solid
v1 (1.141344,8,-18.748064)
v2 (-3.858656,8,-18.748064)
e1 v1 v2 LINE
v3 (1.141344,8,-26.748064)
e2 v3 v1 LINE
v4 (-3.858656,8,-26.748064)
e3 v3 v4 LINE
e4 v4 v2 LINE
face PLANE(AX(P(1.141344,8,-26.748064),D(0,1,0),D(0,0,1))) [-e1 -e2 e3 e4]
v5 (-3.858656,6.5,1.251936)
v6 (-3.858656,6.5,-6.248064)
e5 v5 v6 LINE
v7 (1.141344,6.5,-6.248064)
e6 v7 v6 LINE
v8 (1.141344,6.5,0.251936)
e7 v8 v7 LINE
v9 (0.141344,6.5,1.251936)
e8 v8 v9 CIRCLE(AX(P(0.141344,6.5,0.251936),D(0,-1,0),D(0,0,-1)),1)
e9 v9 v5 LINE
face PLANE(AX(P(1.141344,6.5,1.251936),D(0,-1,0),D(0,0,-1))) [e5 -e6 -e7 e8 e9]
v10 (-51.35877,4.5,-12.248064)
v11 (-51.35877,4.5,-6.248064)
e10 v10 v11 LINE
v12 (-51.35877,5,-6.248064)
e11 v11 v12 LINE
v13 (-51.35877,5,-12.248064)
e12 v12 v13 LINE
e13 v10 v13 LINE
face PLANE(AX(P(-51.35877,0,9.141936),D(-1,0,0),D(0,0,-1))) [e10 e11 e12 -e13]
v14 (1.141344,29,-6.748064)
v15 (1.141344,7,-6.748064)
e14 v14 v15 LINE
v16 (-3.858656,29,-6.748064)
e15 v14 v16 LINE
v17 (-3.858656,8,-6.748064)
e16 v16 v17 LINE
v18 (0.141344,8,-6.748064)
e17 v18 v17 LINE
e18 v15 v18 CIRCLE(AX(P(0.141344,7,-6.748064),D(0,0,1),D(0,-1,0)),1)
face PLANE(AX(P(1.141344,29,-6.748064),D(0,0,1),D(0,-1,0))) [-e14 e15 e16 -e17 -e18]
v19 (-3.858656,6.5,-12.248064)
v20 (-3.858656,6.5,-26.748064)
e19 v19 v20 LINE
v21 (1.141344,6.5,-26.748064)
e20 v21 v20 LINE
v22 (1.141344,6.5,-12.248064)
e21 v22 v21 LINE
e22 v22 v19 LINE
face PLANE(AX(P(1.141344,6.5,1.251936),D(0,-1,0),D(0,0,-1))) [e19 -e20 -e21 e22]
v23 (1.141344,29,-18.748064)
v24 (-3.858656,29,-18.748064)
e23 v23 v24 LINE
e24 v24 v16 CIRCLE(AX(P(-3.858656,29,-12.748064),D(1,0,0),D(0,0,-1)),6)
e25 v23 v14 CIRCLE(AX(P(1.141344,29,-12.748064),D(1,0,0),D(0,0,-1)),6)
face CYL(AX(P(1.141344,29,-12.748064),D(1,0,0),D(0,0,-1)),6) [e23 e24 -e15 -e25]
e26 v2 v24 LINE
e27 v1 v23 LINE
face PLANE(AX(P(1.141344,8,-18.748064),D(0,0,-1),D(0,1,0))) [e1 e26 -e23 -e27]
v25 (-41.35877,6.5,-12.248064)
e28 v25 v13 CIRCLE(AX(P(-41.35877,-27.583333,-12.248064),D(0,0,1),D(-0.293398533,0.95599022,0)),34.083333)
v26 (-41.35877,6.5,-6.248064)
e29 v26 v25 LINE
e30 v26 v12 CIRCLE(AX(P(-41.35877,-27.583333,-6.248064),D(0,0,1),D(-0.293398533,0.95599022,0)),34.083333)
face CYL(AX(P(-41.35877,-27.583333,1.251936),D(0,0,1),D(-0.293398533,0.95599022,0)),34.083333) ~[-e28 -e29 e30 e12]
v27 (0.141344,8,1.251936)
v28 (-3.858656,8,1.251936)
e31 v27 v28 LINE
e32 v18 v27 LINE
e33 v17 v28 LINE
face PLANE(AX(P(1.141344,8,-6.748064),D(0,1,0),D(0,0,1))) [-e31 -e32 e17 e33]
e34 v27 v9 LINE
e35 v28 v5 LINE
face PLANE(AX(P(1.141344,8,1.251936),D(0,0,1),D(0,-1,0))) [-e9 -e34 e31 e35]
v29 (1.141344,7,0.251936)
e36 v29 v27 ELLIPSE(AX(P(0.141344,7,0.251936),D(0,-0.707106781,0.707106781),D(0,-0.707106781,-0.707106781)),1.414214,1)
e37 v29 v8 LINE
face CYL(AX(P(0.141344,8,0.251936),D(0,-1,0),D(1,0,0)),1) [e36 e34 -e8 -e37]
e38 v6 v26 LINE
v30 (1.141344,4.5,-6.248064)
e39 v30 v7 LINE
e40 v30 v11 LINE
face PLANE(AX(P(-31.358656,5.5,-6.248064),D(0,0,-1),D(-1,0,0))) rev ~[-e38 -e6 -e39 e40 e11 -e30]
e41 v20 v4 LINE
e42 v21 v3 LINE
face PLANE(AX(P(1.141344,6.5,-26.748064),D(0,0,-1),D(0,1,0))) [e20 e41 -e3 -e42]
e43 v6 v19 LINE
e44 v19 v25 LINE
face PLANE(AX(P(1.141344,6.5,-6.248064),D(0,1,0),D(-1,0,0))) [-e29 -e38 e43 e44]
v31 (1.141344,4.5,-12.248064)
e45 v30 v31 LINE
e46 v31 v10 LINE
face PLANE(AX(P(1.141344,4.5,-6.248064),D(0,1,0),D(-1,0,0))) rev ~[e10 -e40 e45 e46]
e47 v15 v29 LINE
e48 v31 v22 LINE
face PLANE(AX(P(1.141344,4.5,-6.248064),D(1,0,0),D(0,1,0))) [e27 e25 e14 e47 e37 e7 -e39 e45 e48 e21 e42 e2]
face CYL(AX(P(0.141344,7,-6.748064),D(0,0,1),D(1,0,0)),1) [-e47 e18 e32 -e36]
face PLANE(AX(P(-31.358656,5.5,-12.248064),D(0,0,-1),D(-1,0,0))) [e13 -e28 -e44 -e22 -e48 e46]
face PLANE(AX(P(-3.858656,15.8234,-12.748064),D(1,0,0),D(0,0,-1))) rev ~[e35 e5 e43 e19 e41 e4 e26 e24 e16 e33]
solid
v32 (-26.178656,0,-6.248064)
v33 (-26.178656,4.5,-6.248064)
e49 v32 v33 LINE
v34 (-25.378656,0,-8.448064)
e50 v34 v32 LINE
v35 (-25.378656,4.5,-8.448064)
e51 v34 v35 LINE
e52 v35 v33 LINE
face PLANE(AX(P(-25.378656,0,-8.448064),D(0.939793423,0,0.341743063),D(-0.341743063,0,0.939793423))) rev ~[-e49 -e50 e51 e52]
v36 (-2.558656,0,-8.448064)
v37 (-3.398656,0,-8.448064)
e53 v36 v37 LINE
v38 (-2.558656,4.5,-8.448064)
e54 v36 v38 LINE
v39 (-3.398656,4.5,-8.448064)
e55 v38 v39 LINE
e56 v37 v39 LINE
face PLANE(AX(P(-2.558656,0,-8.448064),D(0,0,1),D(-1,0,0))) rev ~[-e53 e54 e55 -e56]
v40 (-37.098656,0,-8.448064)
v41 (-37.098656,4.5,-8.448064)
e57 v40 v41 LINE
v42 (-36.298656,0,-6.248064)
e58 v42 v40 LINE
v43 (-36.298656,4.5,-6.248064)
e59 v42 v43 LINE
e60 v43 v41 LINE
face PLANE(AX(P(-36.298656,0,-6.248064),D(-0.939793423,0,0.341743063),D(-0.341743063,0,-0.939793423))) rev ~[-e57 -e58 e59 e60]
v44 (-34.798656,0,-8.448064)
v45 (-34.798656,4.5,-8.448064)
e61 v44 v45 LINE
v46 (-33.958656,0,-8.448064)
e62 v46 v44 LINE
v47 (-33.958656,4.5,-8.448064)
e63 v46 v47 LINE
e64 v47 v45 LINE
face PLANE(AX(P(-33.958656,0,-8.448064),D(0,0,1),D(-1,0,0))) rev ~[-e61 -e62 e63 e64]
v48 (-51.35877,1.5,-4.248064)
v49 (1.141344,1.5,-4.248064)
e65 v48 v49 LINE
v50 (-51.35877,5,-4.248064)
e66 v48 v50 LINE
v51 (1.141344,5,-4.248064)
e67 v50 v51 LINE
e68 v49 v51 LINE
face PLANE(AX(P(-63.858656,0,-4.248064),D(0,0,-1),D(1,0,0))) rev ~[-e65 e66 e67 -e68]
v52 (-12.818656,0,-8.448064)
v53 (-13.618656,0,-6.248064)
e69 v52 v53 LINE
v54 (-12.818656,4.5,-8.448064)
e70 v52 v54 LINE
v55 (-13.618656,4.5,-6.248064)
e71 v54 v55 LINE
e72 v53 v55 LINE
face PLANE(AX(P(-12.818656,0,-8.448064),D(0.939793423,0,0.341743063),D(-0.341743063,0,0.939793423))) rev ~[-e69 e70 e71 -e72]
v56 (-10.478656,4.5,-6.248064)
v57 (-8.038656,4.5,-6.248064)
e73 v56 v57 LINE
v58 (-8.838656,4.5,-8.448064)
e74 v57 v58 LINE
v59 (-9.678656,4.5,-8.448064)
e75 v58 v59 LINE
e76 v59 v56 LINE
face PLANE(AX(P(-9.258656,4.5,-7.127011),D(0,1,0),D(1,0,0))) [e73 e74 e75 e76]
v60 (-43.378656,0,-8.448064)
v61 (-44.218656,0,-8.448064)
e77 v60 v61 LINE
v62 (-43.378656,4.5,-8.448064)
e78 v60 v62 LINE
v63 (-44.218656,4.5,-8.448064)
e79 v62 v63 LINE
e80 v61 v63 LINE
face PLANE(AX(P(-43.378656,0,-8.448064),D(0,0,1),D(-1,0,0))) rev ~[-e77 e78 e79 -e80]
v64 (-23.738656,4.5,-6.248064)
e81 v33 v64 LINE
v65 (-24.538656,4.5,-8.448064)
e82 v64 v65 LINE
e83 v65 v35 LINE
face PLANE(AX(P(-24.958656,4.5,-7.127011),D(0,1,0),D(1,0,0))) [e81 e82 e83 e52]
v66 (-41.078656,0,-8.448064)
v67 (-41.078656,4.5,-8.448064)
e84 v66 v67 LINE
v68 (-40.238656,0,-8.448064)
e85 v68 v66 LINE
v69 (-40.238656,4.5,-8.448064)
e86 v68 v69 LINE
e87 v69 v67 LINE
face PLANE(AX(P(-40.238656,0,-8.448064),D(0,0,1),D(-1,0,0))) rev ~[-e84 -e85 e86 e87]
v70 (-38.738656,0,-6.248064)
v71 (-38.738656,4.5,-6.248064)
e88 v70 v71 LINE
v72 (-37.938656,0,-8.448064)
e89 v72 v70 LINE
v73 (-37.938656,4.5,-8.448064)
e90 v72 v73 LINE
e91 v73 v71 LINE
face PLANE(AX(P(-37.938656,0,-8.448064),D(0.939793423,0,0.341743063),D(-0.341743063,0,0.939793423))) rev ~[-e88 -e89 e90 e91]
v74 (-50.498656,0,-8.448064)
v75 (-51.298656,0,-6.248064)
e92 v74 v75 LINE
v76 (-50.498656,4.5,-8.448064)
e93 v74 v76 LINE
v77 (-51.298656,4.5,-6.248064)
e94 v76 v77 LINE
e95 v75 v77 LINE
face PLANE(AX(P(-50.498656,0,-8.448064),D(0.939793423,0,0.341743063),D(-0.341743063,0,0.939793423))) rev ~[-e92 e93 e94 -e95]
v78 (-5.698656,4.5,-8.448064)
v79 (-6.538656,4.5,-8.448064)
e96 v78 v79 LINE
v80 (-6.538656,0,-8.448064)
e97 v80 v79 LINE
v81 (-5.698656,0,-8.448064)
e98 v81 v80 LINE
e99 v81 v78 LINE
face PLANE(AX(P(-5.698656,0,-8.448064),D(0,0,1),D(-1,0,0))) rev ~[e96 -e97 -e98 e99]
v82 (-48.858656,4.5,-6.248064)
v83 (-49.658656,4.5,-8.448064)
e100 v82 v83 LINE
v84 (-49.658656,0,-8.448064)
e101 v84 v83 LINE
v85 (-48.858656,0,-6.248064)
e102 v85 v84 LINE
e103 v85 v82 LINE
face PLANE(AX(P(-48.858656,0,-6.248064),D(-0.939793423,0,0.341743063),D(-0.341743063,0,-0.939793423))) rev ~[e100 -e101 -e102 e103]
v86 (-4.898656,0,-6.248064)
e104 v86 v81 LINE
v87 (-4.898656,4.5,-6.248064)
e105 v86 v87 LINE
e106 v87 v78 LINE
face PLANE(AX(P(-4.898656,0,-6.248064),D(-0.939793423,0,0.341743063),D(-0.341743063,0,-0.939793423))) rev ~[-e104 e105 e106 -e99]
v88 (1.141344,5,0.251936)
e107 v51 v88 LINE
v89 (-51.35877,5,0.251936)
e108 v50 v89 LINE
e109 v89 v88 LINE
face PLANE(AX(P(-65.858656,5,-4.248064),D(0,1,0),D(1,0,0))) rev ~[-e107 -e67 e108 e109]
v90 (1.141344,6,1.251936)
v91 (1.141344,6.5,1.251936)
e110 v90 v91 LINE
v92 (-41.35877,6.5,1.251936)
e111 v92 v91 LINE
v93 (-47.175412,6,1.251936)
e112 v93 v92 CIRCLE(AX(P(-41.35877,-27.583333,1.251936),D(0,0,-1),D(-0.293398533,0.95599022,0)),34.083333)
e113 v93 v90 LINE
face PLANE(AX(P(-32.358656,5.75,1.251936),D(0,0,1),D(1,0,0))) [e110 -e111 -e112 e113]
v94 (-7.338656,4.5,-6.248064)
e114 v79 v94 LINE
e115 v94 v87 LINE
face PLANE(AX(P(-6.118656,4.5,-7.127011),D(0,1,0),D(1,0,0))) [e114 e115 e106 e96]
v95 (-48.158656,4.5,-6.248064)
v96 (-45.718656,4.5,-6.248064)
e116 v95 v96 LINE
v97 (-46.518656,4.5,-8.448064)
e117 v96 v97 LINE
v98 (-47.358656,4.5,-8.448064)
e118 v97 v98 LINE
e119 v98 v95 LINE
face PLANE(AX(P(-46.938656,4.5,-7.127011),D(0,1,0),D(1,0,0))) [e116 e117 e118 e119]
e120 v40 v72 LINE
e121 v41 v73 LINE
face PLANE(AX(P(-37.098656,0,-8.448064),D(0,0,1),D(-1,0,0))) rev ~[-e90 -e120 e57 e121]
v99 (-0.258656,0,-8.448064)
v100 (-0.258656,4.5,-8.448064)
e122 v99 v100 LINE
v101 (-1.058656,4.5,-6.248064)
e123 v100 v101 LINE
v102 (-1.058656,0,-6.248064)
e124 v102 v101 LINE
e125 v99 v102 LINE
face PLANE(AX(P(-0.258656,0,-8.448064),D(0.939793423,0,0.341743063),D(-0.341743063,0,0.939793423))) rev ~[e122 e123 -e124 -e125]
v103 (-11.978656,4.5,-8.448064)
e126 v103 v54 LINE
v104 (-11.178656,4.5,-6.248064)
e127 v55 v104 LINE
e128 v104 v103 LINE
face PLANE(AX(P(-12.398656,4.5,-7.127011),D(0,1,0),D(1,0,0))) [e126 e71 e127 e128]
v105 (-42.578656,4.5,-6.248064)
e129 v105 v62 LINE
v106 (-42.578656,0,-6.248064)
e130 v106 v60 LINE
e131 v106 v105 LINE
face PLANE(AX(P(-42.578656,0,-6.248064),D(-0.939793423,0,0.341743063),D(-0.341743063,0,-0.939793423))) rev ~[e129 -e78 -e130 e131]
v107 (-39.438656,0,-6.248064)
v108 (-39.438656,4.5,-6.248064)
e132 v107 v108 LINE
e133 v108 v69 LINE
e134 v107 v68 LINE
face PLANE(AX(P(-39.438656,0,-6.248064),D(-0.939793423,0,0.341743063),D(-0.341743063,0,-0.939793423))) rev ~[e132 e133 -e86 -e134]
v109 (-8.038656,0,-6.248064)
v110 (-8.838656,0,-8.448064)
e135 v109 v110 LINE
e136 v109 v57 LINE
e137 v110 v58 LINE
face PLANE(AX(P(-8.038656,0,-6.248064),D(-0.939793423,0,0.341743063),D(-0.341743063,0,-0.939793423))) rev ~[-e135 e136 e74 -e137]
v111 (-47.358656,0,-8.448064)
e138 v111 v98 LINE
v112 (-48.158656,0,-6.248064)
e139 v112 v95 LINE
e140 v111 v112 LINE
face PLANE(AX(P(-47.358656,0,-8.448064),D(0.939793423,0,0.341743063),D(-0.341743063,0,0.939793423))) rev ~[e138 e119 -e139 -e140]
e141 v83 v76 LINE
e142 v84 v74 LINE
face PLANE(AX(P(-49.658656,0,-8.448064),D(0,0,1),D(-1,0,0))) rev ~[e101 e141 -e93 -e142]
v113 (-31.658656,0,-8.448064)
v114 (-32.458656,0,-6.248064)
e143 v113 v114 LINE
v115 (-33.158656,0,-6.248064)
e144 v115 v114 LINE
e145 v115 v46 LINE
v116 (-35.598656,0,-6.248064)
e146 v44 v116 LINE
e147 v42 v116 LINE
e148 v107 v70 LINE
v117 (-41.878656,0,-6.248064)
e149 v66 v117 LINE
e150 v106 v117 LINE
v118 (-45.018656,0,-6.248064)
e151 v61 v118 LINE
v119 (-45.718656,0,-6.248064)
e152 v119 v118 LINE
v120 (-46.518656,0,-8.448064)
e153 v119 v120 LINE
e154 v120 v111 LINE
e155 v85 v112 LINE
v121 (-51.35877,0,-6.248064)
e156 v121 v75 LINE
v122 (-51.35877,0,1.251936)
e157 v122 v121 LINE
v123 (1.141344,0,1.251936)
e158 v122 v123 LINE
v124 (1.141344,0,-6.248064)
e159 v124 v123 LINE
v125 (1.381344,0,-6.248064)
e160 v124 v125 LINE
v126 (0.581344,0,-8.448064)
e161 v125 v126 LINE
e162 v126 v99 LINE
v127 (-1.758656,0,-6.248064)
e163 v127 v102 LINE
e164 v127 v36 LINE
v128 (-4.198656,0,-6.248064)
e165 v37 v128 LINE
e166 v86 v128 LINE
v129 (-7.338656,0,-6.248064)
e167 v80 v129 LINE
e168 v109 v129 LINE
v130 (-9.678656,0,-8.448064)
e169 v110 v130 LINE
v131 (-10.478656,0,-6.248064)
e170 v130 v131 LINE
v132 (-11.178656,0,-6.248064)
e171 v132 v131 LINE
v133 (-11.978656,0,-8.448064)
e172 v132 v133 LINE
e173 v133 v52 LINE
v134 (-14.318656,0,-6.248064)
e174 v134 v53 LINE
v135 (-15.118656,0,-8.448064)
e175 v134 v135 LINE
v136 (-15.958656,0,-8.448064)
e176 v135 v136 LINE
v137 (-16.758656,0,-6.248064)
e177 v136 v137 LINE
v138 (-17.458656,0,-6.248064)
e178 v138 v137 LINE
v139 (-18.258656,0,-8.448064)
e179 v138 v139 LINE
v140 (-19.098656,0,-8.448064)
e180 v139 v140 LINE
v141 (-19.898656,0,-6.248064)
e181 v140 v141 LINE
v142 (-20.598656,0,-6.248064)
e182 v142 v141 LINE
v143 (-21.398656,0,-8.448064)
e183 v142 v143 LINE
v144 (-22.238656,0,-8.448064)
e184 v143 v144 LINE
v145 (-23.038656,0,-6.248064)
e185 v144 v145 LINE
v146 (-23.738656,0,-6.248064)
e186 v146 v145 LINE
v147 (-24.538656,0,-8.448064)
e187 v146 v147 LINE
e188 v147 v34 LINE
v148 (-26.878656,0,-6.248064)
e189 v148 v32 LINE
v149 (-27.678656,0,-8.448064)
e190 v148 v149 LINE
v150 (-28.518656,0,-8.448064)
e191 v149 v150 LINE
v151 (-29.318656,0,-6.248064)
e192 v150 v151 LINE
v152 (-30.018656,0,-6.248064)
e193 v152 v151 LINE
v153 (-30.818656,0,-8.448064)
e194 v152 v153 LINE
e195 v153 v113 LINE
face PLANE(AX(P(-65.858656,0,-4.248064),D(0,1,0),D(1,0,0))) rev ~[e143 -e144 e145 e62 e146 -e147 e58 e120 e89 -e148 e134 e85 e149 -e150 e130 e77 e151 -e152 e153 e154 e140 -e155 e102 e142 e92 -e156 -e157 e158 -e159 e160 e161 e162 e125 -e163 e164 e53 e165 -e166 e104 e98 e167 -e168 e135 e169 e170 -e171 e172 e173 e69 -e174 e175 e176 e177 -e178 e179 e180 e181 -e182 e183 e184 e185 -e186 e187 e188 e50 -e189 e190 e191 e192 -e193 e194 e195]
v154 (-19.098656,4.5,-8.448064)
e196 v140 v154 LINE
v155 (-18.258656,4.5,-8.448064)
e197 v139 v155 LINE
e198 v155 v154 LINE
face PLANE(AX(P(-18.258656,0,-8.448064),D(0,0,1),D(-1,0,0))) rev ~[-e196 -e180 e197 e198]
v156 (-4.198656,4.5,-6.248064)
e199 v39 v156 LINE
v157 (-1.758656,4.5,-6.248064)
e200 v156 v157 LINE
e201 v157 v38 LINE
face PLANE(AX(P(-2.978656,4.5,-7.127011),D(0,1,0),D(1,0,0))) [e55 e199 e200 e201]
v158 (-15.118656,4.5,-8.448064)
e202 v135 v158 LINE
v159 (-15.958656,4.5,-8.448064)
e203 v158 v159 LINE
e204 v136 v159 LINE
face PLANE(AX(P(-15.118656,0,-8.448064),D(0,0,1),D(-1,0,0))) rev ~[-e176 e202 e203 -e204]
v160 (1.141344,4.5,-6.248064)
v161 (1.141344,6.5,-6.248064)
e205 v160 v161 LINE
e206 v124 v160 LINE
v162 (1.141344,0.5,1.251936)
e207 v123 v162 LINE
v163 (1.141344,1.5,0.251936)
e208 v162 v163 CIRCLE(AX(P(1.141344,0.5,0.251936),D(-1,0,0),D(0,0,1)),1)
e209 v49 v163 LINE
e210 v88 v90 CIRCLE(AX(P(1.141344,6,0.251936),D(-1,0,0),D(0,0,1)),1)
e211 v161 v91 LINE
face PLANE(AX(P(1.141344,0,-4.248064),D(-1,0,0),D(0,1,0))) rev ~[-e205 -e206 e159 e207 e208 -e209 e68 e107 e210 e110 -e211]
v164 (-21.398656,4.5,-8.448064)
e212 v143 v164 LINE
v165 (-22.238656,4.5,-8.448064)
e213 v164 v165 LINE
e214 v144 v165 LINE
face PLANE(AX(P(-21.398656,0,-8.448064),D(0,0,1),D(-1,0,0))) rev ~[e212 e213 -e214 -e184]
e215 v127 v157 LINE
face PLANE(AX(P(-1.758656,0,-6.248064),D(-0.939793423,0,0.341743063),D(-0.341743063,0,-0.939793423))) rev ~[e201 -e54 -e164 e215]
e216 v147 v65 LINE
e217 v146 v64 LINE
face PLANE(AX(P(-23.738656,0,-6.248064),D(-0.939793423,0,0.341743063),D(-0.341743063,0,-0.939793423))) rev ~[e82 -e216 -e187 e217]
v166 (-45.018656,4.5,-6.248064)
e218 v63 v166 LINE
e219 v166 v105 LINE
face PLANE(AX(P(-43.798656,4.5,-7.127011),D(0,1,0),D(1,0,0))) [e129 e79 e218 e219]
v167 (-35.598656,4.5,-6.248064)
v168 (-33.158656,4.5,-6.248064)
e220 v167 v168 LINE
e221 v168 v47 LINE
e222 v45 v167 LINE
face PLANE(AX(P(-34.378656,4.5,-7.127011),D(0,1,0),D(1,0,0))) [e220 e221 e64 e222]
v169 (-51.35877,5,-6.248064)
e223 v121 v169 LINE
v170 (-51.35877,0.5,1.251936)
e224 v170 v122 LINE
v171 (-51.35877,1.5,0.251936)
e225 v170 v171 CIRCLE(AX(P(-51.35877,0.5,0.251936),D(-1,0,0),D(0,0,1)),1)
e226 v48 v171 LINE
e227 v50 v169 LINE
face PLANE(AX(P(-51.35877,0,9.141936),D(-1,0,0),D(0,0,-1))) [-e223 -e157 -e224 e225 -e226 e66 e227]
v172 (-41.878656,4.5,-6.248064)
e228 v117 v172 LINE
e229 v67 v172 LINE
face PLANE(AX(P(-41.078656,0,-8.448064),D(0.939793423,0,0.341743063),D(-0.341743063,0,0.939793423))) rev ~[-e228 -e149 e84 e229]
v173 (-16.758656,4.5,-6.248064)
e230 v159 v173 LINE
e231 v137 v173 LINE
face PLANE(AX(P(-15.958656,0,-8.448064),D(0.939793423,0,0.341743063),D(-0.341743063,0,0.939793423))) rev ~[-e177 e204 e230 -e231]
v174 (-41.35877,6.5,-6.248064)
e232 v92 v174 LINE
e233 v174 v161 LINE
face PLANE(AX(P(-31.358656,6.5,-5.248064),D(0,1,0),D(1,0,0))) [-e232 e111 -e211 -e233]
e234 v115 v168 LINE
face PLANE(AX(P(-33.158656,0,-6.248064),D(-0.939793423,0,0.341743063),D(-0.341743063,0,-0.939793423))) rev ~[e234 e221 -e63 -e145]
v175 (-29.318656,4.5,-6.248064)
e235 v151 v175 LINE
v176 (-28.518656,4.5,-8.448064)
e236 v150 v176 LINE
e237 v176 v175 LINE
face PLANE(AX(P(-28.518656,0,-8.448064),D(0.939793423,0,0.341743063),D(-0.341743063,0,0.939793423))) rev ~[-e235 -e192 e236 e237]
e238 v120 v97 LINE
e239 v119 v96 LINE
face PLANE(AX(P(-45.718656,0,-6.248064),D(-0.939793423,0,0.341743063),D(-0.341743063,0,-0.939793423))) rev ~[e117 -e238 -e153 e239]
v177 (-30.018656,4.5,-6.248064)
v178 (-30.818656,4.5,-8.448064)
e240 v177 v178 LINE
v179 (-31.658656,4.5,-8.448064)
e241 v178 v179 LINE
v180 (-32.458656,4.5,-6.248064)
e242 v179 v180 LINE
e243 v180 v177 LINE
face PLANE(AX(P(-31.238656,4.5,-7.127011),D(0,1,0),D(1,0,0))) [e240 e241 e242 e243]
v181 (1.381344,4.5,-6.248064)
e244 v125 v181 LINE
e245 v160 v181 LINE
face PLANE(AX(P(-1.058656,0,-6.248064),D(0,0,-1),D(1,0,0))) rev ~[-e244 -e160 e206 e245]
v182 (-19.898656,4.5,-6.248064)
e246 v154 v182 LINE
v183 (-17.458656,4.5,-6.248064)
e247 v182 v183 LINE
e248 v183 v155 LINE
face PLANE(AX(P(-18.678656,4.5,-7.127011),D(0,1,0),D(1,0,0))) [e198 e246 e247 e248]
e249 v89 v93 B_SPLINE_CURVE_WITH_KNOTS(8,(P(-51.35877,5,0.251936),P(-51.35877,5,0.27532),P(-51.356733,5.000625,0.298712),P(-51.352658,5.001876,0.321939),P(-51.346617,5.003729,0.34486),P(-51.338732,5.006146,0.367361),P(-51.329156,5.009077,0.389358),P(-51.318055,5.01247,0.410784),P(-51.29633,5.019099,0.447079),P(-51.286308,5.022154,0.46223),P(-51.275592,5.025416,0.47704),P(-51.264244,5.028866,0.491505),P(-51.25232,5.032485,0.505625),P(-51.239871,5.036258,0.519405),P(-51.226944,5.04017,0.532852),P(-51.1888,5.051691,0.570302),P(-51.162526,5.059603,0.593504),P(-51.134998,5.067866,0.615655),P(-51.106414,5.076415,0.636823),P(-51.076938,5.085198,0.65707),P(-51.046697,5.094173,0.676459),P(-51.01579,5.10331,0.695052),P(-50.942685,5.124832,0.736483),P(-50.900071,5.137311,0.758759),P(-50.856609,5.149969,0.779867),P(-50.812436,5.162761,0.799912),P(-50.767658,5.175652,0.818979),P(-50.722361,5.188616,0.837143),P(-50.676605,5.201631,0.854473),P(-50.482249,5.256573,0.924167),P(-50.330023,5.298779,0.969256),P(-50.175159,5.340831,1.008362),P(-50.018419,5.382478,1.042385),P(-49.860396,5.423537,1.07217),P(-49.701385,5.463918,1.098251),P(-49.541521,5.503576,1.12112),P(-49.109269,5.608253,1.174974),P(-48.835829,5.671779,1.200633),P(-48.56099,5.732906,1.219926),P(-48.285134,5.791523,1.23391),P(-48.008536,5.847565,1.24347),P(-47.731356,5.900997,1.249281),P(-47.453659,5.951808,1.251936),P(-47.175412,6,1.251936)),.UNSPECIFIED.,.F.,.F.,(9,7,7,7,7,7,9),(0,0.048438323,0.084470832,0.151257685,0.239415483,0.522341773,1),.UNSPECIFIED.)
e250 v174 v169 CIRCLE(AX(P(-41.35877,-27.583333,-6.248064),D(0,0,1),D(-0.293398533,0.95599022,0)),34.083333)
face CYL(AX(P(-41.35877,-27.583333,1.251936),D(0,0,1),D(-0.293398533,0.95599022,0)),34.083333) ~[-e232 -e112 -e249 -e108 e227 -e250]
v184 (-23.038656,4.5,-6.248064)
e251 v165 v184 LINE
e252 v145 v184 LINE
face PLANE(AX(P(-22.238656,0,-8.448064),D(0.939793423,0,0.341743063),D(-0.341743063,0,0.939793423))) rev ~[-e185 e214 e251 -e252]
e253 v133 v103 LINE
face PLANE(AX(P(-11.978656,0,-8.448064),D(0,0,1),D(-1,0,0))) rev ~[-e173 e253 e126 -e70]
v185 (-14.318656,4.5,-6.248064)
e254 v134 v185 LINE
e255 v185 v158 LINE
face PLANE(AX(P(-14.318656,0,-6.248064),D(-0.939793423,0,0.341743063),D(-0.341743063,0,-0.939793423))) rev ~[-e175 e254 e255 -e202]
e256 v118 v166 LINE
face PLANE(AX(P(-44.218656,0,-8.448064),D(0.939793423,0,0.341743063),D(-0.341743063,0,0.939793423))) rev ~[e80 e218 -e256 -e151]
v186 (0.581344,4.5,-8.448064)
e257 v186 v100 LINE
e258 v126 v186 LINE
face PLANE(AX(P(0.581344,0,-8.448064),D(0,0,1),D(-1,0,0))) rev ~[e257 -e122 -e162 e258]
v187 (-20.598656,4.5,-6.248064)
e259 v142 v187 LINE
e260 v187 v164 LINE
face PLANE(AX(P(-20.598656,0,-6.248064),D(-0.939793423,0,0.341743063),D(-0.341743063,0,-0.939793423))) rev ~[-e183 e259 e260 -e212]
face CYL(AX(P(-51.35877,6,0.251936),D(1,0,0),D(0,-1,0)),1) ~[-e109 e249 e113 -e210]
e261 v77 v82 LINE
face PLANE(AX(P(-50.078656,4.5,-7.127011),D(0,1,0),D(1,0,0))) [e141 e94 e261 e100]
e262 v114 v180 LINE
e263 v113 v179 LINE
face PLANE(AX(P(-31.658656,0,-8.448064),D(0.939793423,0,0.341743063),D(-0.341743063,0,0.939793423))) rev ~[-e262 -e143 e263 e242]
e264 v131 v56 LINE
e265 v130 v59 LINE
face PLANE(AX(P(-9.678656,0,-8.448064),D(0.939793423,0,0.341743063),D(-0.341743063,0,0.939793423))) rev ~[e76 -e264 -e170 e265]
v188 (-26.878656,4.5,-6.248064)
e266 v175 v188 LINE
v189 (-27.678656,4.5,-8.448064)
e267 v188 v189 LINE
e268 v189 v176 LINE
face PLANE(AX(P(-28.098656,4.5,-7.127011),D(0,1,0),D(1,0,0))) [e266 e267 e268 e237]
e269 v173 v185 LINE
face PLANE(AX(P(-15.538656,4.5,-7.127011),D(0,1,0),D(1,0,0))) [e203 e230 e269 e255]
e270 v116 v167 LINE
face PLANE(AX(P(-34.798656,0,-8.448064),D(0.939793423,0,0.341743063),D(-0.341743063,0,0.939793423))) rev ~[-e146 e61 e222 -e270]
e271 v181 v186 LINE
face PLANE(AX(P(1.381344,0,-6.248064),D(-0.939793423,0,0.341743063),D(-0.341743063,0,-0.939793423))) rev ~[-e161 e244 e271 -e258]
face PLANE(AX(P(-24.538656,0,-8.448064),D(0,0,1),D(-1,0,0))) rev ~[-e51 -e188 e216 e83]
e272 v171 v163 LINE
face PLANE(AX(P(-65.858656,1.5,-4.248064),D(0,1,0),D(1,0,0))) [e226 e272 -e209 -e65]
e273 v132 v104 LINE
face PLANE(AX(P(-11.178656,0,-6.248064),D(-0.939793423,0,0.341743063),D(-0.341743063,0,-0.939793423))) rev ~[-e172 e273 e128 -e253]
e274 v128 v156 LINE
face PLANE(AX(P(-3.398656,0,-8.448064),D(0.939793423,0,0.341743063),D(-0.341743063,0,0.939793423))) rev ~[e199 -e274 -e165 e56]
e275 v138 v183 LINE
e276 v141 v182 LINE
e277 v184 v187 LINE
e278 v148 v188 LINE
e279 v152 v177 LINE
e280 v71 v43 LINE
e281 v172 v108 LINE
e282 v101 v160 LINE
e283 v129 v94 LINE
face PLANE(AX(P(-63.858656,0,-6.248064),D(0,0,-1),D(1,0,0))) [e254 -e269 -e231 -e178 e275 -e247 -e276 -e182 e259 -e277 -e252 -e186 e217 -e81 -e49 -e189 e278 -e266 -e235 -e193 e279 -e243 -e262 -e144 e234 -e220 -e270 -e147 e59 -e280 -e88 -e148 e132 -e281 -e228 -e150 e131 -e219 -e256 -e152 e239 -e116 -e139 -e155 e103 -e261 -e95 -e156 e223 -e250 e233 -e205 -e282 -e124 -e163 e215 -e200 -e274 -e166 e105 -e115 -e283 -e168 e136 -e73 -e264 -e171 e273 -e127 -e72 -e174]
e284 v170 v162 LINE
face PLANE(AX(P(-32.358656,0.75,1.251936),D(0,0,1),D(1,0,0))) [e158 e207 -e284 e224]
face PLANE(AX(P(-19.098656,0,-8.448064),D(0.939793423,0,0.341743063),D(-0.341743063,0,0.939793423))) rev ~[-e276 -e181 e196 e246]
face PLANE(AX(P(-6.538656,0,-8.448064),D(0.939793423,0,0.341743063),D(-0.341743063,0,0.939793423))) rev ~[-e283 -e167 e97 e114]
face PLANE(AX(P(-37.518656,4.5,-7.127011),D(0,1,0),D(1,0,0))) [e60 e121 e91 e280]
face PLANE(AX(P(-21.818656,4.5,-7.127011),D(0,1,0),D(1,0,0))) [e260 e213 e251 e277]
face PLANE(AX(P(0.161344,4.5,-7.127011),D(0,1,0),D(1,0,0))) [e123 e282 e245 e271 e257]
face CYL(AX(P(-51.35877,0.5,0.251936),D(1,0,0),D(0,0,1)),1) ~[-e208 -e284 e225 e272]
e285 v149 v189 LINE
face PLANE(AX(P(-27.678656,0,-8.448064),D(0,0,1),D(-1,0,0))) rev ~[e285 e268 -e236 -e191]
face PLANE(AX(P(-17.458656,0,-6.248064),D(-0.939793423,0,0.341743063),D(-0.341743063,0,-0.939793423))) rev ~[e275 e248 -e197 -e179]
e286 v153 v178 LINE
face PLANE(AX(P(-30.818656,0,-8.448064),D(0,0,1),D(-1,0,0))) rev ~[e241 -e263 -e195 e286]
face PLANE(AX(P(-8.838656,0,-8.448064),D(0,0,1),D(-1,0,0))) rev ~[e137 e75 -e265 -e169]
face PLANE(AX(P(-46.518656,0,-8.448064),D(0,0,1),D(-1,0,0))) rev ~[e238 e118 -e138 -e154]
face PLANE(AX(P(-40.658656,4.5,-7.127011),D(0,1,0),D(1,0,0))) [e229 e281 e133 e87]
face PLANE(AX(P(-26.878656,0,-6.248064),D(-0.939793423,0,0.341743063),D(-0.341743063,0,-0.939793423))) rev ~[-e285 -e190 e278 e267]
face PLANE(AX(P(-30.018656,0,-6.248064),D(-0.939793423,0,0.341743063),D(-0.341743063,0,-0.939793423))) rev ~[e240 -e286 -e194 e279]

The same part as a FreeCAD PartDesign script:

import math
import FreeCAD as App
import Part
import Sketcher
from FreeCAD import Vector
Q = App.Units.Quantity


def edges_at(feature, points):
    """Names of the edges that pass closest to the given points."""
    edges = feature.Shape.Edges
    near = lambda p: min(range(len(edges)), key=lambda i: edges[i].distToShape(Part.Vertex(*p))[0])
    return sorted({f"Edge{near(p) + 1}" for p in points})


def add_polygon(sketch, points):
    """Adds a closed chain of lines whose ends are joined by coincident constraints."""
    first, n = sketch.GeometryCount, len(points)
    for a, b in zip(points, points[1:] + points[:1]):
        sketch.addGeometry(Part.LineSegment(App.Vector(*a, 0), App.Vector(*b, 0)), False)
    for i in range(n):
        sketch.addConstraint(Sketcher.Constraint("Coincident", first + i, 2, first + (i + 1) % n, 1))

doc = App.newDocument("Part")
body = doc.addObject("PartDesign::Body", "Body")

# Sketch on XZ plane
sketch1 = body.newObject("Sketcher::SketchObject", "Sketch")
sketch1.AttachmentSupport = (doc.getObject("XZ_Plane"), [""])
sketch1.MapMode = "FlatFace"
add_polygon(sketch1, [(-63.858656, -6.248064), (-63.858656, -4.248064), (1.141344, -4.248064), (1.141344, -6.248064)])  # lines 0-3
sketch1.addConstraint([
    Sketcher.Constraint("Vertical", 0),
    Sketcher.Constraint("Horizontal", 1),
    Sketcher.Constraint("Vertical", 2),
    Sketcher.Constraint("Horizontal", 3),
    Sketcher.Constraint("DistanceX", 1, 1, 1, 2, Q("65 mm")),
    Sketcher.Constraint("DistanceY", 0, 1, 0, 2, Q("2 mm")),
    Sketcher.Constraint("DistanceX", 0, 2, -1, 1, Q("63.858656 mm")),
    Sketcher.Constraint("DistanceY", 0, 2, -1, 1, Q("4.248064 mm")),
])
pad1 = body.newObject("PartDesign::Pad", "Pad")
pad1.Profile = sketch1
pad1.Length = 6.5
pad1.Reversed = True

# Sketch on XZ plane
sketch2 = body.newObject("Sketcher::SketchObject", "Sketch001")
sketch2.AttachmentSupport = (doc.getObject("XZ_Plane"), [""])
sketch2.MapMode = "FlatFace"
add_polygon(sketch2, [(-63.058656, -8.448064), (-63.858656, -6.248064), (-61.418656, -6.248064), (-62.218656, -8.448064)])  # lines 0-3
add_polygon(sketch2, [(-59.918656, -8.448064), (-60.718656, -6.248064), (-58.278656, -6.248064), (-59.078656, -8.448064)])  # lines 4-7
add_polygon(sketch2, [(-56.778656, -8.448064), (-57.578656, -6.248064), (-55.138656, -6.248064), (-55.938656, -8.448064)])  # lines 8-11
add_polygon(sketch2, [(-53.638656, -8.448064), (-54.438656, -6.248064), (-51.998656, -6.248064), (-52.798656, -8.448064)])  # lines 12-15
add_polygon(sketch2, [(-50.498656, -8.448064), (-51.298656, -6.248064), (-48.858656, -6.248064), (-49.658656, -8.448064)])  # lines 16-19
add_polygon(sketch2, [(-47.358656, -8.448064), (-48.158656, -6.248064), (-45.718656, -6.248064), (-46.518656, -8.448064)])  # lines 20-23
add_polygon(sketch2, [(-44.218656, -8.448064), (-45.018656, -6.248064), (-42.578656, -6.248064), (-43.378656, -8.448064)])  # lines 24-27
add_polygon(sketch2, [(-41.078656, -8.448064), (-41.878656, -6.248064), (-39.438656, -6.248064), (-40.238656, -8.448064)])  # lines 28-31
add_polygon(sketch2, [(-37.938656, -8.448064), (-38.738656, -6.248064), (-36.298656, -6.248064), (-37.098656, -8.448064)])  # lines 32-35
add_polygon(sketch2, [(-34.798656, -8.448064), (-35.598656, -6.248064), (-33.158656, -6.248064), (-33.958656, -8.448064)])  # lines 36-39
add_polygon(sketch2, [(-31.658656, -8.448064), (-32.458656, -6.248064), (-30.018656, -6.248064), (-30.818656, -8.448064)])  # lines 40-43
add_polygon(sketch2, [(-29.318656, -6.248064), (-26.878656, -6.248064), (-27.678656, -8.448064), (-28.518656, -8.448064)])  # lines 44-47
add_polygon(sketch2, [(-26.178656, -6.248064), (-23.738656, -6.248064), (-24.538656, -8.448064), (-25.378656, -8.448064)])  # lines 48-51
add_polygon(sketch2, [(-23.038656, -6.248064), (-20.598656, -6.248064), (-21.398656, -8.448064), (-22.238656, -8.448064)])  # lines 52-55
add_polygon(sketch2, [(-19.898656, -6.248064), (-17.458656, -6.248064), (-18.258656, -8.448064), (-19.098656, -8.448064)])  # lines 56-59
add_polygon(sketch2, [(-16.758656, -6.248064), (-14.318656, -6.248064), (-15.118656, -8.448064), (-15.958656, -8.448064)])  # lines 60-63
add_polygon(sketch2, [(-13.618656, -6.248064), (-11.178656, -6.248064), (-11.978656, -8.448064), (-12.818656, -8.448064)])  # lines 64-67
add_polygon(sketch2, [(-10.478656, -6.248064), (-8.038656, -6.248064), (-8.838656, -8.448064), (-9.678656, -8.448064)])  # lines 68-71
add_polygon(sketch2, [(-7.338656, -6.248064), (-4.898656, -6.248064), (-5.698656, -8.448064), (-6.538656, -8.448064)])  # lines 72-75
add_polygon(sketch2, [(-4.198656, -6.248064), (-1.758656, -6.248064), (-2.558656, -8.448064), (-3.398656, -8.448064)])  # lines 76-79
add_polygon(sketch2, [(-0.258656, -8.448064), (-1.058656, -6.248064), (1.381344, -6.248064), (0.581344, -8.448064)])  # lines 80-83
sketch2.addConstraint([
    Sketcher.Constraint("Horizontal", 1),
    Sketcher.Constraint("Horizontal", 3),
    Sketcher.Constraint("Horizontal", 5),
    Sketcher.Constraint("Horizontal", 7),
    Sketcher.Constraint("Horizontal", 9),
    Sketcher.Constraint("Horizontal", 11),
    Sketcher.Constraint("Horizontal", 13),
    Sketcher.Constraint("Horizontal", 15),
    Sketcher.Constraint("Horizontal", 17),
    Sketcher.Constraint("Horizontal", 19),
    Sketcher.Constraint("Horizontal", 21),
    Sketcher.Constraint("Horizontal", 23),
    Sketcher.Constraint("Horizontal", 25),
    Sketcher.Constraint("Horizontal", 27),
    Sketcher.Constraint("Horizontal", 29),
    Sketcher.Constraint("Horizontal", 31),
    Sketcher.Constraint("Horizontal", 33),
    Sketcher.Constraint("Horizontal", 35),
    Sketcher.Constraint("Horizontal", 37),
    Sketcher.Constraint("Horizontal", 39),
    Sketcher.Constraint("Horizontal", 41),
    Sketcher.Constraint("Horizontal", 43),
    Sketcher.Constraint("Horizontal", 44),
    Sketcher.Constraint("Horizontal", 46),
    Sketcher.Constraint("Horizontal", 48),
    Sketcher.Constraint("Horizontal", 50),
    Sketcher.Constraint("Horizontal", 52),
    Sketcher.Constraint("Horizontal", 54),
    Sketcher.Constraint("Horizontal", 56),
    Sketcher.Constraint("Horizontal", 58),
    Sketcher.Constraint("Horizontal", 60),
    Sketcher.Constraint("Horizontal", 62),
    Sketcher.Constraint("Horizontal", 64),
    Sketcher.Constraint("Horizontal", 66),
    Sketcher.Constraint("Horizontal", 68),
    Sketcher.Constraint("Horizontal", 70),
    Sketcher.Constraint("Horizontal", 72),
    Sketcher.Constraint("Horizontal", 74),
    Sketcher.Constraint("Horizontal", 76),
    Sketcher.Constraint("Horizontal", 78),
    Sketcher.Constraint("Horizontal", 81),
    Sketcher.Constraint("Horizontal", 83),
    Sketcher.Constraint("Parallel", 0, 4),
    Sketcher.Constraint("Parallel", 2, 6),
    Sketcher.Constraint("Parallel", 4, 8),
    Sketcher.Constraint("Parallel", 6, 10),
    Sketcher.Constraint("Parallel", 8, 12),
    Sketcher.Constraint("Parallel", 10, 14),
    Sketcher.Constraint("Parallel", 12, 16),
    Sketcher.Constraint("Parallel", 14, 18),
    Sketcher.Constraint("Parallel", 16, 20),
    Sketcher.Constraint("Parallel", 18, 22),
    Sketcher.Constraint("Parallel", 20, 24),
    Sketcher.Constraint("Parallel", 22, 26),
    Sketcher.Constraint("Parallel", 24, 28),
    Sketcher.Constraint("Parallel", 26, 30),
    Sketcher.Constraint("Parallel", 28, 32),
    Sketcher.Constraint("Parallel", 30, 34),
    Sketcher.Constraint("Parallel", 32, 36),
    Sketcher.Constraint("Parallel", 34, 38),
    Sketcher.Constraint("Parallel", 36, 40),
    Sketcher.Constraint("Parallel", 38, 42),
    Sketcher.Constraint("Parallel", 42, 45),
    Sketcher.Constraint("Parallel", 40, 47),
    Sketcher.Constraint("Parallel", 45, 49),
    Sketcher.Constraint("Parallel", 47, 51),
    Sketcher.Constraint("Parallel", 49, 53),
    Sketcher.Constraint("Parallel", 51, 55),
    Sketcher.Constraint("Parallel", 53, 57),
    Sketcher.Constraint("Parallel", 55, 59),
    Sketcher.Constraint("Parallel", 57, 61),
    Sketcher.Constraint("Parallel", 59, 63),
    Sketcher.Constraint("Parallel", 61, 65),
    Sketcher.Constraint("Parallel", 63, 67),
    Sketcher.Constraint("Parallel", 65, 69),
    Sketcher.Constraint("Parallel", 67, 71),
    Sketcher.Constraint("Parallel", 69, 73),
    Sketcher.Constraint("Parallel", 71, 75),
    Sketcher.Constraint("Parallel", 73, 77),
    Sketcher.Constraint("Parallel", 75, 79),
    Sketcher.Constraint("Parallel", 79, 80),
    Sketcher.Constraint("Parallel", 77, 82),
    Sketcher.Constraint("Horizontal", 1, 2, 4, 2),
    Sketcher.Constraint("Horizontal", 3, 2, 6, 2),
    Sketcher.Constraint("Horizontal", 5, 2, 8, 2),
    Sketcher.Constraint("Horizontal", 7, 2, 10, 2),
    Sketcher.Constraint("Horizontal", 9, 2, 12, 2),
    Sketcher.Constraint("Horizontal", 11, 2, 14, 2),
    Sketcher.Constraint("Horizontal", 13, 2, 16, 2),
    Sketcher.Constraint("Horizontal", 15, 2, 18, 2),
    Sketcher.Constraint("Horizontal", 17, 2, 20, 2),
    Sketcher.Constraint("Horizontal", 19, 2, 22, 2),
    Sketcher.Constraint("Horizontal", 21, 2, 24, 2),
    Sketcher.Constraint("Horizontal", 23, 2, 26, 2),
    Sketcher.Constraint("Horizontal", 25, 2, 28, 2),
    Sketcher.Constraint("Horizontal", 27, 2, 30, 2),
    Sketcher.Constraint("Horizontal", 29, 2, 32, 2),
    Sketcher.Constraint("Horizontal", 31, 2, 34, 2),
    Sketcher.Constraint("Horizontal", 33, 2, 36, 2),
    Sketcher.Constraint("Horizontal", 35, 2, 38, 2),
    Sketcher.Constraint("Horizontal", 37, 2, 40, 2),
    Sketcher.Constraint("Horizontal", 39, 2, 42, 2),
    Sketcher.Constraint("Horizontal", 41, 2, 44, 2),
    Sketcher.Constraint("Horizontal", 43, 2, 45, 2),
    Sketcher.Constraint("Horizontal", 47, 2, 48, 2),
    Sketcher.Constraint("Horizontal", 46, 2, 49, 2),
    Sketcher.Constraint("Horizontal", 51, 2, 52, 2),
    Sketcher.Constraint("Horizontal", 50, 2, 53, 2),
    Sketcher.Constraint("Horizontal", 55, 2, 56, 2),
    Sketcher.Constraint("Horizontal", 54, 2, 57, 2),
    Sketcher.Constraint("Horizontal", 59, 2, 60, 2),
    Sketcher.Constraint("Horizontal", 58, 2, 61, 2),
    Sketcher.Constraint("Horizontal", 63, 2, 64, 2),
    Sketcher.Constraint("Horizontal", 62, 2, 65, 2),
    Sketcher.Constraint("Horizontal", 67, 2, 68, 2),
    Sketcher.Constraint("Horizontal", 66, 2, 69, 2),
    Sketcher.Constraint("Horizontal", 71, 2, 72, 2),
    Sketcher.Constraint("Horizontal", 70, 2, 73, 2),
    Sketcher.Constraint("Horizontal", 75, 2, 76, 2),
    Sketcher.Constraint("Horizontal", 74, 2, 77, 2),
    Sketcher.Constraint("Horizontal", 79, 2, 80, 2),
    Sketcher.Constraint("Horizontal", 78, 2, 82, 2),
    Sketcher.Constraint("Equal", 1, 5),
    Sketcher.Constraint("Equal", 5, 9),
    Sketcher.Constraint("Equal", 9, 13),
    Sketcher.Constraint("Equal", 13, 17),
    Sketcher.Constraint("Equal", 17, 21),
    Sketcher.Constraint("Equal", 21, 25),
    Sketcher.Constraint("Equal", 25, 29),
    Sketcher.Constraint("Equal", 29, 33),
    Sketcher.Constraint("Equal", 33, 37),
    Sketcher.Constraint("Equal", 37, 41),
    Sketcher.Constraint("Equal", 41, 44),
    Sketcher.Constraint("Equal", 44, 48),
    Sketcher.Constraint("Equal", 48, 52),
    Sketcher.Constraint("Equal", 52, 56),
    Sketcher.Constraint("Equal", 56, 60),
    Sketcher.Constraint("Equal", 60, 64),
    Sketcher.Constraint("Equal", 64, 68),
    Sketcher.Constraint("Equal", 68, 72),
    Sketcher.Constraint("Equal", 72, 76),
    Sketcher.Constraint("Equal", 76, 81),
    Sketcher.Constraint("Equal", 0, 2),
    Sketcher.Constraint("DistanceX", 1, 1, 1, 2, Q("2.44 mm")),
    Sketcher.Constraint("DistanceX", 3, 2, 3, 1, Q("0.84 mm")),
    Sketcher.Constraint("Distance", 0, Q("2.34094 mm")),
    Sketcher.Constraint("DistanceX", 0, 2, -1, 1, Q("63.858656 mm")),
    Sketcher.Constraint("DistanceY", 0, 2, -1, 1, Q("6.248064 mm")),
    Sketcher.Constraint("DistanceX", 4, 2, -1, 1, Q("60.718656 mm")),
    Sketcher.Constraint("DistanceX", 8, 2, -1, 1, Q("57.578656 mm")),
    Sketcher.Constraint("DistanceX", 12, 2, -1, 1, Q("54.438656 mm")),
    Sketcher.Constraint("DistanceX", 16, 2, -1, 1, Q("51.298656 mm")),
    Sketcher.Constraint("DistanceX", 20, 2, -1, 1, Q("48.158656 mm")),
    Sketcher.Constraint("DistanceX", 24, 2, -1, 1, Q("45.018656 mm")),
    Sketcher.Constraint("DistanceX", 28, 2, -1, 1, Q("41.878656 mm")),
    Sketcher.Constraint("DistanceX", 32, 2, -1, 1, Q("38.738656 mm")),
    Sketcher.Constraint("DistanceX", 36, 2, -1, 1, Q("35.598656 mm")),
    Sketcher.Constraint("DistanceX", 40, 2, -1, 1, Q("32.458656 mm")),
    Sketcher.Constraint("DistanceX", 44, 2, -1, 1, Q("26.878656 mm")),
    Sketcher.Constraint("DistanceX", 48, 2, -1, 1, Q("23.738656 mm")),
    Sketcher.Constraint("DistanceX", 52, 2, -1, 1, Q("20.598656 mm")),
    Sketcher.Constraint("DistanceX", 56, 2, -1, 1, Q("17.458656 mm")),
    Sketcher.Constraint("DistanceX", 60, 2, -1, 1, Q("14.318656 mm")),
    Sketcher.Constraint("DistanceX", 64, 2, -1, 1, Q("11.178656 mm")),
    Sketcher.Constraint("DistanceX", 68, 2, -1, 1, Q("8.038656 mm")),
    Sketcher.Constraint("DistanceX", 72, 2, -1, 1, Q("4.898656 mm")),
    Sketcher.Constraint("DistanceX", 76, 2, -1, 1, Q("1.758656 mm")),
    Sketcher.Constraint("DistanceX", 80, 2, -1, 1, Q("1.058656 mm")),
])
pad2 = body.newObject("PartDesign::Pad", "Pad001")
pad2.Profile = sketch2
pad2.Length = 4.5
pad2.Reversed = True

# Sketch on XY plane
sketch3 = body.newObject("Sketcher::SketchObject", "Sketch002")
sketch3.AttachmentSupport = (doc.getObject("XY_Plane"), [""])
sketch3.MapMode = "FlatFace"
sketch3.AttachmentOffset = App.Placement(Vector(0, 0, -4.248064), App.Rotation())
add_polygon(sketch3, [(-65.858656, 1.5), (-65.858656, 0), (1.141344, 0), (1.141344, 1.5)])  # lines 0-3
add_polygon(sketch3, [(-65.858656, 6.5), (-65.858656, 5), (1.141344, 5), (1.141344, 6.5)])  # lines 4-7
sketch3.addConstraint([
    Sketcher.Constraint("Vertical", 0),
    Sketcher.Constraint("Horizontal", 1),
    Sketcher.Constraint("Vertical", 2),
    Sketcher.Constraint("Horizontal", 3),
    Sketcher.Constraint("Vertical", 4),
    Sketcher.Constraint("Horizontal", 5),
    Sketcher.Constraint("Vertical", 6),
    Sketcher.Constraint("Horizontal", 7),
    Sketcher.Constraint("PointOnObject", 0, 2, -1),
    Sketcher.Constraint("Vertical", 3, 2, 4, 2),
    Sketcher.Constraint("Vertical", 2, 2, 5, 2),
    Sketcher.Constraint("Equal", 2, 4),
    Sketcher.Constraint("DistanceX", 1, 1, 1, 2, Q("67 mm")),
    Sketcher.Constraint("DistanceY", 0, 2, 0, 1, Q("1.5 mm")),
    Sketcher.Constraint("DistanceY", -1, 1, 4, 2, Q("5 mm")),
    Sketcher.Constraint("DistanceX", 0, 2, -1, 1, Q("65.858656 mm")),
])
pad3 = body.newObject("PartDesign::Pad", "Pad002")
pad3.Profile = sketch3
pad3.Length = 5.5
body2 = doc.addObject("PartDesign::Body", "Body001")

# Sketch on YZ plane
sketch4 = body2.newObject("Sketcher::SketchObject", "Sketch003")
sketch4.AttachmentSupport = (doc.getObject("YZ_Plane001"), [""])
sketch4.MapMode = "FlatFace"
sketch4.AttachmentOffset = App.Placement(Vector(0, 0, 1.141344), App.Rotation())
sketch4.addGeometry([
    Part.LineSegment(Vector(6.5, 1.251936, 0), Vector(6.5, -26.748064, 0)),  # 0
    Part.LineSegment(Vector(6.5, -26.748064, 0), Vector(8, -26.748064, 0)),  # 1
    Part.LineSegment(Vector(8, -26.748064, 0), Vector(8, -18.748064, 0)),  # 2
    Part.LineSegment(Vector(8, -18.748064, 0), Vector(29, -18.748064, 0)),  # 3
    Part.ArcOfCircle(Part.Circle(Vector(29, -12.748064, 0), Vector(0, 0, 1), 6), math.radians(-90), math.radians(90)),  # 4
    Part.LineSegment(Vector(29, -6.748064, 0), Vector(8, -6.748064, 0)),  # 5
    Part.LineSegment(Vector(8, -6.748064, 0), Vector(8, 1.251936, 0)),  # 6
    Part.LineSegment(Vector(8, 1.251936, 0), Vector(6.5, 1.251936, 0)),  # 7
], False)
sketch4.addConstraint([
    Sketcher.Constraint("Coincident", 0, 2, 1, 1),
    Sketcher.Constraint("Coincident", 1, 2, 2, 1),
    Sketcher.Constraint("Coincident", 2, 2, 3, 1),
    Sketcher.Constraint("Tangent", 3, 2, 4, 1),
    Sketcher.Constraint("Tangent", 4, 2, 5, 1),
    Sketcher.Constraint("Coincident", 5, 2, 6, 1),
    Sketcher.Constraint("Coincident", 6, 2, 7, 1),
    Sketcher.Constraint("Coincident", 7, 2, 0, 1),
    Sketcher.Constraint("Vertical", 0),
    Sketcher.Constraint("Horizontal", 1),
    Sketcher.Constraint("Vertical", 2),
    Sketcher.Constraint("Horizontal", 3),
    Sketcher.Constraint("Horizontal", 5),
    Sketcher.Constraint("Vertical", 6),
    Sketcher.Constraint("Horizontal", 7),
    Sketcher.Constraint("Vertical", 2, 2, 5, 2),
    Sketcher.Constraint("Equal", 2, 6),
    Sketcher.Constraint("Radius", 4, Q("6 mm")),
    Sketcher.Constraint("DistanceX", 3, 1, 3, 2, Q("21 mm")),
    Sketcher.Constraint("DistanceY", 0, 2, 0, 1, Q("28 mm")),
    Sketcher.Constraint("DistanceX", 1, 1, 1, 2, Q("1.5 mm")),
    Sketcher.Constraint("DistanceX", -1, 1, 4, 3, Q("29 mm")),
    Sketcher.Constraint("DistanceY", 4, 3, -1, 1, Q("12.748064 mm")),
])
pad4 = body2.newObject("PartDesign::Pad", "Pad003")
pad4.Profile = sketch4
pad4.Length = 5
pad4.Reversed = True

# Sketch on XY plane
sketch5 = body2.newObject("Sketcher::SketchObject", "Sketch004")
sketch5.AttachmentSupport = (doc.getObject("XY_Plane001"), [""])
sketch5.MapMode = "FlatFace"
sketch5.AttachmentOffset = App.Placement(Vector(0, 0, -6.248064), App.Rotation())
add_polygon(sketch5, [(1.141344, 6.5), (1.141344, 4.5), (-63.858656, 4.5), (-63.858656, 6.5)])  # lines 0-3
sketch5.addConstraint([
    Sketcher.Constraint("Vertical", 0),
    Sketcher.Constraint("Horizontal", 1),
    Sketcher.Constraint("Vertical", 2),
    Sketcher.Constraint("Horizontal", 3),
    Sketcher.Constraint("DistanceX", 1, 2, 1, 1, Q("65 mm")),
    Sketcher.Constraint("DistanceY", 0, 2, 0, 1, Q("2 mm")),
    Sketcher.Constraint("DistanceY", -1, 1, 0, 2, Q("4.5 mm")),
    Sketcher.Constraint("DistanceX", -1, 1, 0, 2, Q("1.141344 mm")),
])
pad5 = body2.newObject("PartDesign::Pad", "Pad004")
pad5.Profile = sketch5
pad5.Length = 6
pad5.Reversed = True
body3 = doc.addObject("PartDesign::Body", "Body002")

# Sketch on XZ plane
sketch6 = body3.newObject("Sketcher::SketchObject", "Sketch005")
sketch6.AttachmentSupport = (doc.getObject("XZ_Plane002"), [""])
sketch6.MapMode = "FlatFace"
add_polygon(sketch6, [(-51.35877, -19.948976), (-51.35877, 9.141936), (-76.681722, 9.141936), (-76.681722, -19.948976)])  # lines 0-3
sketch6.addConstraint([
    Sketcher.Constraint("Vertical", 0),
    Sketcher.Constraint("Horizontal", 1),
    Sketcher.Constraint("Vertical", 2),
    Sketcher.Constraint("Horizontal", 3),
    Sketcher.Constraint("DistanceX", 1, 2, 1, 1, Q("25.322952 mm")),
    Sketcher.Constraint("DistanceY", 0, 1, 0, 2, Q("29.090913 mm")),
    Sketcher.Constraint("DistanceX", 0, 2, -1, 1, Q("51.35877 mm")),
    Sketcher.Constraint("DistanceY", -1, 1, 0, 2, Q("9.141936 mm")),
])
pad6 = body3.newObject("PartDesign::Pad", "Pad005")
pad6.Profile = sketch6
pad6.Length = 36
pad6.Reversed = True
doc.recompute()

body4 = doc.addObject("PartDesign::Body", "Body003")
body4.BaseFeature = body3
boolean = body.newObject("PartDesign::Boolean", "Boolean")
boolean.Type = "Cut"
boolean.addObjects([body4])
doc.recompute()

boolean2 = body2.newObject("PartDesign::Boolean", "Boolean001")
boolean2.Type = "Cut"
boolean2.addObjects([body3])
body5 = doc.addObject("PartDesign::Body", "Body004")

# Sketch on XY plane
sketch7 = body5.newObject("Sketcher::SketchObject", "Sketch006")
sketch7.AttachmentSupport = (doc.getObject("XY_Plane004"), [""])
sketch7.MapMode = "FlatFace"
sketch7.AttachmentOffset = App.Placement(Vector(0, 0, 1.251936), App.Rotation())
sketch7.addGeometry([
    Part.LineSegment(Vector(-51.35877, 6.5, 0), Vector(-51.35877, 5, 0)),
    Part.ArcOfCircle(Part.Circle(Vector(-41.35877, -27.583333, 0), Vector(0, 0, 1), 34.083333), math.radians(90), math.radians(107.061531)),
    Part.LineSegment(Vector(-41.35877, 6.5, 0), Vector(-51.35877, 6.5, 0)),
], False)
sketch7.addConstraint([
    Sketcher.Constraint("Coincident", 0, 2, 1, 2),
    Sketcher.Constraint("Tangent", 1, 1, 2, 1),
    Sketcher.Constraint("Coincident", 2, 2, 0, 1),
    Sketcher.Constraint("Vertical", 0),
    Sketcher.Constraint("Horizontal", 2),
    Sketcher.Constraint("DistanceX", 2, 2, 2, 1, Q("10 mm")),
    Sketcher.Constraint("DistanceY", 0, 2, 0, 1, Q("1.5 mm")),
    Sketcher.Constraint("DistanceY", -1, 1, 0, 2, Q("5 mm")),
    Sketcher.Constraint("DistanceX", 1, 3, -1, 1, Q("41.35877 mm")),
])
pad7 = body5.newObject("PartDesign::Pad", "Pad006")
pad7.Profile = sketch7
pad7.Length = 29
pad7.Reversed = True
doc.recompute()

body6 = doc.addObject("PartDesign::Body", "Body005")
body6.BaseFeature = body5
boolean3 = body.newObject("PartDesign::Boolean", "Boolean002")
boolean3.Type = "Cut"
boolean3.addObjects([body6])
doc.recompute()

fillet = body.newObject("PartDesign::Fillet", "Fillet")
fillet.Base = (boolean3, edges_at(boolean3, [(-25.109, 5, 1.252), (-25.109, 1.5, 1.252)]))
fillet.Radius = 1
doc.recompute()

boolean4 = body2.newObject("PartDesign::Boolean", "Boolean003")
boolean4.Type = "Cut"
boolean4.addObjects([body5])
doc.recompute()

fillet2 = body2.newObject("PartDesign::Fillet", "Fillet001")
fillet2.Base = (boolean4, edges_at(boolean4, [(1.141, 7.25, 1.252), (1.141, 8, -2.748)]))
fillet2.Radius = 1

doc.recompute()
